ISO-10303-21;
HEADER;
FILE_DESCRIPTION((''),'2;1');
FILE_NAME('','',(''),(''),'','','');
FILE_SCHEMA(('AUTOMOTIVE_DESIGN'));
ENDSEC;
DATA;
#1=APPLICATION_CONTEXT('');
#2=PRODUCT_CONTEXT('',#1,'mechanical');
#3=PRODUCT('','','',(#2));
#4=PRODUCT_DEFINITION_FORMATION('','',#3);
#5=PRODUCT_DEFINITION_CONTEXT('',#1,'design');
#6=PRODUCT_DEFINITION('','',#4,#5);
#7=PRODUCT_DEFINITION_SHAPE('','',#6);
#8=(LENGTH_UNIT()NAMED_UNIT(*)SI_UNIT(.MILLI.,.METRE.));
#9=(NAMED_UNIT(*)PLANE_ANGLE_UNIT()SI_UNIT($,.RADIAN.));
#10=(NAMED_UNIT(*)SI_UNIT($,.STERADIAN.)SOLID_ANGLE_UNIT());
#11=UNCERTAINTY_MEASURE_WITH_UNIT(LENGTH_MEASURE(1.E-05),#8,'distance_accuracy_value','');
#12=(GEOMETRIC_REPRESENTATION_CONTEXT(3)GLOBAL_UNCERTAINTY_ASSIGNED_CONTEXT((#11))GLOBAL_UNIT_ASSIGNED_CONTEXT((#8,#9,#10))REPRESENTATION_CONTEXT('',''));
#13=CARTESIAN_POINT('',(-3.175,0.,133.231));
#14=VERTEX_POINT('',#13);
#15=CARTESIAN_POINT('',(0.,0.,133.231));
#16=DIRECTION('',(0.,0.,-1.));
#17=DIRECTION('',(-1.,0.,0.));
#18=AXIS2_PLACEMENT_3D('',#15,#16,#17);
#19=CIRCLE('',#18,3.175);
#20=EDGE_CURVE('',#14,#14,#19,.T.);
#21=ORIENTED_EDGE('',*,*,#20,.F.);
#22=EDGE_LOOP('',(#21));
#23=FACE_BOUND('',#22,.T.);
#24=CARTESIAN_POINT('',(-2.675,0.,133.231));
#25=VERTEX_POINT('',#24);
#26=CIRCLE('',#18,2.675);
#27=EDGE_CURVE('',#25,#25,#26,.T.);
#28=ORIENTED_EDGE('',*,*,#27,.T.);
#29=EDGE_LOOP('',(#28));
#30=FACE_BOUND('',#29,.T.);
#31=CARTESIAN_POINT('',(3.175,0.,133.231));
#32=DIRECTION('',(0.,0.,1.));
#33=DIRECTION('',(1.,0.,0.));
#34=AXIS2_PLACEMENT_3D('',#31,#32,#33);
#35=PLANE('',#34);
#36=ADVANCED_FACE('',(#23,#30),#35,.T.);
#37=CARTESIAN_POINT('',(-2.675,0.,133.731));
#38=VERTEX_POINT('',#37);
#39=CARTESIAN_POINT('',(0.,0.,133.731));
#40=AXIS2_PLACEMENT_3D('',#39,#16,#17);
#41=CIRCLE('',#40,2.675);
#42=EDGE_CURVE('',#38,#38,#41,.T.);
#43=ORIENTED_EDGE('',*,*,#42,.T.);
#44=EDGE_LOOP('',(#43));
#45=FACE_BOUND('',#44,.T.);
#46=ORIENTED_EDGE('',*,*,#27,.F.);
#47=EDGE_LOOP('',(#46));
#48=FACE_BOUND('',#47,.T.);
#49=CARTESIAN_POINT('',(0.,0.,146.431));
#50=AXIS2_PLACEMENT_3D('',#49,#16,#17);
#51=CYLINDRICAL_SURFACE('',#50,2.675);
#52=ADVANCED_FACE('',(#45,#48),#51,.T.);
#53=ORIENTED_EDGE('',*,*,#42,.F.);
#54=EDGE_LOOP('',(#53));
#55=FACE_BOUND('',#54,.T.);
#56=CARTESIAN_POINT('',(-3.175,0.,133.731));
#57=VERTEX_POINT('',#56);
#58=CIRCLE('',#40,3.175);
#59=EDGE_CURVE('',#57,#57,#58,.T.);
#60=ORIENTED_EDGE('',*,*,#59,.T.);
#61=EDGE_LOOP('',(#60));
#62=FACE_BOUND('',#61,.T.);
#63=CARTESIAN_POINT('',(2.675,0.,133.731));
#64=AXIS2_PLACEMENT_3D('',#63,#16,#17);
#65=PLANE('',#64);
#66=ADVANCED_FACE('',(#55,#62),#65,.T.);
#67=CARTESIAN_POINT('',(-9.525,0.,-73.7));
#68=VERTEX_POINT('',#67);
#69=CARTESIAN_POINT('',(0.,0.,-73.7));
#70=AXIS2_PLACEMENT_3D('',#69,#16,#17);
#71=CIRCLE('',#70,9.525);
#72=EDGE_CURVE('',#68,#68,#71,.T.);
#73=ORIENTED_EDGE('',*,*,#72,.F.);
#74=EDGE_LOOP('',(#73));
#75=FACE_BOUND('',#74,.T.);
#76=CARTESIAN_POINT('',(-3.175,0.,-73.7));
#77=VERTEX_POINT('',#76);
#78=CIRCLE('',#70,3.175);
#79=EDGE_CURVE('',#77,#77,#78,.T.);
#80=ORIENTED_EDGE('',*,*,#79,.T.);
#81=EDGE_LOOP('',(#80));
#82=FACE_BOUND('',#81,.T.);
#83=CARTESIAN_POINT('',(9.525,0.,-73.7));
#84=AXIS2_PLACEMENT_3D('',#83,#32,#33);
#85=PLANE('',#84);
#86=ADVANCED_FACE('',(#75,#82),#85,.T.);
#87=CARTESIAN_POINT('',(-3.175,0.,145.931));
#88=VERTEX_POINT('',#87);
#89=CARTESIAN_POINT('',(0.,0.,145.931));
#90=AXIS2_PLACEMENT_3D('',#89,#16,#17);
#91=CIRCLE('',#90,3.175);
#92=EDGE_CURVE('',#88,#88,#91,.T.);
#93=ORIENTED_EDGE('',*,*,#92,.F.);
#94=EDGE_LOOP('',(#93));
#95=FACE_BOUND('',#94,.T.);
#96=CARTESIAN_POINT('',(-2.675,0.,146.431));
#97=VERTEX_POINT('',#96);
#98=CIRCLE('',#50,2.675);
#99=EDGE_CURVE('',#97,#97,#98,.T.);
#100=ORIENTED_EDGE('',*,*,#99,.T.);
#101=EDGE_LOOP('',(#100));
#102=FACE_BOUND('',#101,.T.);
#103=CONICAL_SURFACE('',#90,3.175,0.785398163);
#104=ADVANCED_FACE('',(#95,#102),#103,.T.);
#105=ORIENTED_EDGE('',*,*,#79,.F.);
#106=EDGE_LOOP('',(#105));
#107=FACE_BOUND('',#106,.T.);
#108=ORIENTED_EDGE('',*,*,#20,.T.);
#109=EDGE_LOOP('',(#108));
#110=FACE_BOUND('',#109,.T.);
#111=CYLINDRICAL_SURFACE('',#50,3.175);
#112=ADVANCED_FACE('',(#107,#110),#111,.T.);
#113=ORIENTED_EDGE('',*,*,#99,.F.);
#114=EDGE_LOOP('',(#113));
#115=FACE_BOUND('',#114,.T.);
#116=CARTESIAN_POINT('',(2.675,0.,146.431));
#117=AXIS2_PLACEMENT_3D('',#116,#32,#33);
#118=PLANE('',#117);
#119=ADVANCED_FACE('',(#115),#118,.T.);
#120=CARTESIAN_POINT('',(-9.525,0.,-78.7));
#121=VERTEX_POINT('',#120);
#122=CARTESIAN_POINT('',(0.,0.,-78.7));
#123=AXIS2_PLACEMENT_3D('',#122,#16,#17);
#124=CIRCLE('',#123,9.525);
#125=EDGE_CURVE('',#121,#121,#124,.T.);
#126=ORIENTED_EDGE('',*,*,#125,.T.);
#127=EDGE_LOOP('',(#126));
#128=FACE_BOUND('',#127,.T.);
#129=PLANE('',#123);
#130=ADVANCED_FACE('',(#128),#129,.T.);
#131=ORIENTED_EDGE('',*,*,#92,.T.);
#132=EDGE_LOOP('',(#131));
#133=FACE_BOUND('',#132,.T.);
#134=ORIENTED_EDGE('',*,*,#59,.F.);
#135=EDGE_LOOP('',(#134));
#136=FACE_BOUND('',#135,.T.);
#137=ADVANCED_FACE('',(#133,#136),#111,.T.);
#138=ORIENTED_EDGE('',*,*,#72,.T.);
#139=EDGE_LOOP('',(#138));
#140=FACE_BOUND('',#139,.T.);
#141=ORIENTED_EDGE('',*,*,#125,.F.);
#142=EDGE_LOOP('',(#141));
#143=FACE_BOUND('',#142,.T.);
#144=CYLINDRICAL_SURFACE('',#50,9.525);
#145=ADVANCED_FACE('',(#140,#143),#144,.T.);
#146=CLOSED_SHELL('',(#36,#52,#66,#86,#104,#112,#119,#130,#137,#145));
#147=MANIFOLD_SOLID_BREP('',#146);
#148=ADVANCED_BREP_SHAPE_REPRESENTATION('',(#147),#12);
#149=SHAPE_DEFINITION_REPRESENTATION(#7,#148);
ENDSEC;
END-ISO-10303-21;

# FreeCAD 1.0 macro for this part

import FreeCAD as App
import Part
import Sketcher
Q = App.Units.Quantity


def add_polygon(sketch, points):
    """Adds a closed chain of lines whose ends are joined by coincident constraints."""
    first, n = sketch.GeometryCount, len(points)
    for a, b in zip(points, points[1:] + points[:1]):
        sketch.addGeometry(Part.LineSegment(App.Vector(*a, 0), App.Vector(*b, 0)), False)
    for i in range(n):
        sketch.addConstraint(Sketcher.Constraint("Coincident", first + i, 2, first + (i + 1) % n, 1))

doc = App.newDocument("Part")
params = doc.addObject("Spreadsheet::Sheet", "Params")
for row, (alias, value) in enumerate([
    ("sketch1_height", "5 mm"),
    ("sketch1_width", "0.5 mm"),
    ("sketch1_height2", "12.2 mm"),
    ("sketch1_width2", "6.35 mm"),
    ("revolution_angle", "360 deg"),
], start=1):
    params.set(f"A{row}", alias)
    params.set(f"B{row}", "=" + value)
    params.setAlias(f"B{row}", alias)

body = doc.addObject("PartDesign::Body", "Body")

sketch1 = doc.addObject("Sketcher::SketchObject", "Sketch")
body.addObject(sketch1)
sketch1.AttachmentSupport = (doc.XZ_Plane, [""])
sketch1.MapMode = "FlatFace"
add_polygon(sketch1, [(2.7, 146.4), (0, 146.4), (0, -78.7), (9.5, -78.7), (9.5, -73.7), (3.2, -73.7), (3.2, 133.2), (2.7, 133.2), (2.7, 133.7), (3.2, 133.7), (3.2, 145.9)])
sketch1.addConstraint([
    Sketcher.Constraint("Horizontal", 0),
    Sketcher.Constraint("Vertical", 1),
    Sketcher.Constraint("Horizontal", 2),
    Sketcher.Constraint("Vertical", 3),
    Sketcher.Constraint("Horizontal", 4),
    Sketcher.Constraint("Vertical", 5),
    Sketcher.Constraint("Horizontal", 6),
    Sketcher.Constraint("Vertical", 7),
    Sketcher.Constraint("Horizontal", 8),
    Sketcher.Constraint("Vertical", 9),
    Sketcher.Constraint("PointOnObject", 0, 2, -2),
    Sketcher.Constraint("Vertical", 5, 2, 8, 2),
    Sketcher.Constraint("Vertical", 7, 2, 10, 2),
    Sketcher.Constraint("Equal", 8, 7),
    Sketcher.Constraint("DistanceY", 3, 1, 3, 2, 5.0),
    Sketcher.Constraint("Angle", 10, Q("135 deg")),
    Sketcher.Constraint("DistanceX", 6, 2, 6, 1, 0.5),
    Sketcher.Constraint("DistanceY", 9, 1, 9, 2, 12.2),
    Sketcher.Constraint("DistanceX", 4, 2, 4, 1, 6.35),
    Sketcher.Constraint("DistanceY", 1, 2, -1, 1, 78.7),
    Sketcher.Constraint("DistanceX", 0, 2, 0, 1, 2.675),
    Sketcher.Constraint("DistanceY", 1, 2, 1, 1, 225.131),
])
sketch1.setExpression("Constraints[25]", "Params.sketch1_height")
sketch1.setExpression("Constraints[27]", "Params.sketch1_width")
sketch1.setExpression("Constraints[28]", "Params.sketch1_height2")
sketch1.setExpression("Constraints[29]", "Params.sketch1_width2")
revolution = doc.addObject("PartDesign::Revolution", "Revolution")
body.addObject(revolution)
revolution.Profile = sketch1
revolution.ReferenceAxis = (sketch1, ["V_Axis"])
revolution.setExpression("Angle", "Params.revolution_angle")

doc.recompute()
